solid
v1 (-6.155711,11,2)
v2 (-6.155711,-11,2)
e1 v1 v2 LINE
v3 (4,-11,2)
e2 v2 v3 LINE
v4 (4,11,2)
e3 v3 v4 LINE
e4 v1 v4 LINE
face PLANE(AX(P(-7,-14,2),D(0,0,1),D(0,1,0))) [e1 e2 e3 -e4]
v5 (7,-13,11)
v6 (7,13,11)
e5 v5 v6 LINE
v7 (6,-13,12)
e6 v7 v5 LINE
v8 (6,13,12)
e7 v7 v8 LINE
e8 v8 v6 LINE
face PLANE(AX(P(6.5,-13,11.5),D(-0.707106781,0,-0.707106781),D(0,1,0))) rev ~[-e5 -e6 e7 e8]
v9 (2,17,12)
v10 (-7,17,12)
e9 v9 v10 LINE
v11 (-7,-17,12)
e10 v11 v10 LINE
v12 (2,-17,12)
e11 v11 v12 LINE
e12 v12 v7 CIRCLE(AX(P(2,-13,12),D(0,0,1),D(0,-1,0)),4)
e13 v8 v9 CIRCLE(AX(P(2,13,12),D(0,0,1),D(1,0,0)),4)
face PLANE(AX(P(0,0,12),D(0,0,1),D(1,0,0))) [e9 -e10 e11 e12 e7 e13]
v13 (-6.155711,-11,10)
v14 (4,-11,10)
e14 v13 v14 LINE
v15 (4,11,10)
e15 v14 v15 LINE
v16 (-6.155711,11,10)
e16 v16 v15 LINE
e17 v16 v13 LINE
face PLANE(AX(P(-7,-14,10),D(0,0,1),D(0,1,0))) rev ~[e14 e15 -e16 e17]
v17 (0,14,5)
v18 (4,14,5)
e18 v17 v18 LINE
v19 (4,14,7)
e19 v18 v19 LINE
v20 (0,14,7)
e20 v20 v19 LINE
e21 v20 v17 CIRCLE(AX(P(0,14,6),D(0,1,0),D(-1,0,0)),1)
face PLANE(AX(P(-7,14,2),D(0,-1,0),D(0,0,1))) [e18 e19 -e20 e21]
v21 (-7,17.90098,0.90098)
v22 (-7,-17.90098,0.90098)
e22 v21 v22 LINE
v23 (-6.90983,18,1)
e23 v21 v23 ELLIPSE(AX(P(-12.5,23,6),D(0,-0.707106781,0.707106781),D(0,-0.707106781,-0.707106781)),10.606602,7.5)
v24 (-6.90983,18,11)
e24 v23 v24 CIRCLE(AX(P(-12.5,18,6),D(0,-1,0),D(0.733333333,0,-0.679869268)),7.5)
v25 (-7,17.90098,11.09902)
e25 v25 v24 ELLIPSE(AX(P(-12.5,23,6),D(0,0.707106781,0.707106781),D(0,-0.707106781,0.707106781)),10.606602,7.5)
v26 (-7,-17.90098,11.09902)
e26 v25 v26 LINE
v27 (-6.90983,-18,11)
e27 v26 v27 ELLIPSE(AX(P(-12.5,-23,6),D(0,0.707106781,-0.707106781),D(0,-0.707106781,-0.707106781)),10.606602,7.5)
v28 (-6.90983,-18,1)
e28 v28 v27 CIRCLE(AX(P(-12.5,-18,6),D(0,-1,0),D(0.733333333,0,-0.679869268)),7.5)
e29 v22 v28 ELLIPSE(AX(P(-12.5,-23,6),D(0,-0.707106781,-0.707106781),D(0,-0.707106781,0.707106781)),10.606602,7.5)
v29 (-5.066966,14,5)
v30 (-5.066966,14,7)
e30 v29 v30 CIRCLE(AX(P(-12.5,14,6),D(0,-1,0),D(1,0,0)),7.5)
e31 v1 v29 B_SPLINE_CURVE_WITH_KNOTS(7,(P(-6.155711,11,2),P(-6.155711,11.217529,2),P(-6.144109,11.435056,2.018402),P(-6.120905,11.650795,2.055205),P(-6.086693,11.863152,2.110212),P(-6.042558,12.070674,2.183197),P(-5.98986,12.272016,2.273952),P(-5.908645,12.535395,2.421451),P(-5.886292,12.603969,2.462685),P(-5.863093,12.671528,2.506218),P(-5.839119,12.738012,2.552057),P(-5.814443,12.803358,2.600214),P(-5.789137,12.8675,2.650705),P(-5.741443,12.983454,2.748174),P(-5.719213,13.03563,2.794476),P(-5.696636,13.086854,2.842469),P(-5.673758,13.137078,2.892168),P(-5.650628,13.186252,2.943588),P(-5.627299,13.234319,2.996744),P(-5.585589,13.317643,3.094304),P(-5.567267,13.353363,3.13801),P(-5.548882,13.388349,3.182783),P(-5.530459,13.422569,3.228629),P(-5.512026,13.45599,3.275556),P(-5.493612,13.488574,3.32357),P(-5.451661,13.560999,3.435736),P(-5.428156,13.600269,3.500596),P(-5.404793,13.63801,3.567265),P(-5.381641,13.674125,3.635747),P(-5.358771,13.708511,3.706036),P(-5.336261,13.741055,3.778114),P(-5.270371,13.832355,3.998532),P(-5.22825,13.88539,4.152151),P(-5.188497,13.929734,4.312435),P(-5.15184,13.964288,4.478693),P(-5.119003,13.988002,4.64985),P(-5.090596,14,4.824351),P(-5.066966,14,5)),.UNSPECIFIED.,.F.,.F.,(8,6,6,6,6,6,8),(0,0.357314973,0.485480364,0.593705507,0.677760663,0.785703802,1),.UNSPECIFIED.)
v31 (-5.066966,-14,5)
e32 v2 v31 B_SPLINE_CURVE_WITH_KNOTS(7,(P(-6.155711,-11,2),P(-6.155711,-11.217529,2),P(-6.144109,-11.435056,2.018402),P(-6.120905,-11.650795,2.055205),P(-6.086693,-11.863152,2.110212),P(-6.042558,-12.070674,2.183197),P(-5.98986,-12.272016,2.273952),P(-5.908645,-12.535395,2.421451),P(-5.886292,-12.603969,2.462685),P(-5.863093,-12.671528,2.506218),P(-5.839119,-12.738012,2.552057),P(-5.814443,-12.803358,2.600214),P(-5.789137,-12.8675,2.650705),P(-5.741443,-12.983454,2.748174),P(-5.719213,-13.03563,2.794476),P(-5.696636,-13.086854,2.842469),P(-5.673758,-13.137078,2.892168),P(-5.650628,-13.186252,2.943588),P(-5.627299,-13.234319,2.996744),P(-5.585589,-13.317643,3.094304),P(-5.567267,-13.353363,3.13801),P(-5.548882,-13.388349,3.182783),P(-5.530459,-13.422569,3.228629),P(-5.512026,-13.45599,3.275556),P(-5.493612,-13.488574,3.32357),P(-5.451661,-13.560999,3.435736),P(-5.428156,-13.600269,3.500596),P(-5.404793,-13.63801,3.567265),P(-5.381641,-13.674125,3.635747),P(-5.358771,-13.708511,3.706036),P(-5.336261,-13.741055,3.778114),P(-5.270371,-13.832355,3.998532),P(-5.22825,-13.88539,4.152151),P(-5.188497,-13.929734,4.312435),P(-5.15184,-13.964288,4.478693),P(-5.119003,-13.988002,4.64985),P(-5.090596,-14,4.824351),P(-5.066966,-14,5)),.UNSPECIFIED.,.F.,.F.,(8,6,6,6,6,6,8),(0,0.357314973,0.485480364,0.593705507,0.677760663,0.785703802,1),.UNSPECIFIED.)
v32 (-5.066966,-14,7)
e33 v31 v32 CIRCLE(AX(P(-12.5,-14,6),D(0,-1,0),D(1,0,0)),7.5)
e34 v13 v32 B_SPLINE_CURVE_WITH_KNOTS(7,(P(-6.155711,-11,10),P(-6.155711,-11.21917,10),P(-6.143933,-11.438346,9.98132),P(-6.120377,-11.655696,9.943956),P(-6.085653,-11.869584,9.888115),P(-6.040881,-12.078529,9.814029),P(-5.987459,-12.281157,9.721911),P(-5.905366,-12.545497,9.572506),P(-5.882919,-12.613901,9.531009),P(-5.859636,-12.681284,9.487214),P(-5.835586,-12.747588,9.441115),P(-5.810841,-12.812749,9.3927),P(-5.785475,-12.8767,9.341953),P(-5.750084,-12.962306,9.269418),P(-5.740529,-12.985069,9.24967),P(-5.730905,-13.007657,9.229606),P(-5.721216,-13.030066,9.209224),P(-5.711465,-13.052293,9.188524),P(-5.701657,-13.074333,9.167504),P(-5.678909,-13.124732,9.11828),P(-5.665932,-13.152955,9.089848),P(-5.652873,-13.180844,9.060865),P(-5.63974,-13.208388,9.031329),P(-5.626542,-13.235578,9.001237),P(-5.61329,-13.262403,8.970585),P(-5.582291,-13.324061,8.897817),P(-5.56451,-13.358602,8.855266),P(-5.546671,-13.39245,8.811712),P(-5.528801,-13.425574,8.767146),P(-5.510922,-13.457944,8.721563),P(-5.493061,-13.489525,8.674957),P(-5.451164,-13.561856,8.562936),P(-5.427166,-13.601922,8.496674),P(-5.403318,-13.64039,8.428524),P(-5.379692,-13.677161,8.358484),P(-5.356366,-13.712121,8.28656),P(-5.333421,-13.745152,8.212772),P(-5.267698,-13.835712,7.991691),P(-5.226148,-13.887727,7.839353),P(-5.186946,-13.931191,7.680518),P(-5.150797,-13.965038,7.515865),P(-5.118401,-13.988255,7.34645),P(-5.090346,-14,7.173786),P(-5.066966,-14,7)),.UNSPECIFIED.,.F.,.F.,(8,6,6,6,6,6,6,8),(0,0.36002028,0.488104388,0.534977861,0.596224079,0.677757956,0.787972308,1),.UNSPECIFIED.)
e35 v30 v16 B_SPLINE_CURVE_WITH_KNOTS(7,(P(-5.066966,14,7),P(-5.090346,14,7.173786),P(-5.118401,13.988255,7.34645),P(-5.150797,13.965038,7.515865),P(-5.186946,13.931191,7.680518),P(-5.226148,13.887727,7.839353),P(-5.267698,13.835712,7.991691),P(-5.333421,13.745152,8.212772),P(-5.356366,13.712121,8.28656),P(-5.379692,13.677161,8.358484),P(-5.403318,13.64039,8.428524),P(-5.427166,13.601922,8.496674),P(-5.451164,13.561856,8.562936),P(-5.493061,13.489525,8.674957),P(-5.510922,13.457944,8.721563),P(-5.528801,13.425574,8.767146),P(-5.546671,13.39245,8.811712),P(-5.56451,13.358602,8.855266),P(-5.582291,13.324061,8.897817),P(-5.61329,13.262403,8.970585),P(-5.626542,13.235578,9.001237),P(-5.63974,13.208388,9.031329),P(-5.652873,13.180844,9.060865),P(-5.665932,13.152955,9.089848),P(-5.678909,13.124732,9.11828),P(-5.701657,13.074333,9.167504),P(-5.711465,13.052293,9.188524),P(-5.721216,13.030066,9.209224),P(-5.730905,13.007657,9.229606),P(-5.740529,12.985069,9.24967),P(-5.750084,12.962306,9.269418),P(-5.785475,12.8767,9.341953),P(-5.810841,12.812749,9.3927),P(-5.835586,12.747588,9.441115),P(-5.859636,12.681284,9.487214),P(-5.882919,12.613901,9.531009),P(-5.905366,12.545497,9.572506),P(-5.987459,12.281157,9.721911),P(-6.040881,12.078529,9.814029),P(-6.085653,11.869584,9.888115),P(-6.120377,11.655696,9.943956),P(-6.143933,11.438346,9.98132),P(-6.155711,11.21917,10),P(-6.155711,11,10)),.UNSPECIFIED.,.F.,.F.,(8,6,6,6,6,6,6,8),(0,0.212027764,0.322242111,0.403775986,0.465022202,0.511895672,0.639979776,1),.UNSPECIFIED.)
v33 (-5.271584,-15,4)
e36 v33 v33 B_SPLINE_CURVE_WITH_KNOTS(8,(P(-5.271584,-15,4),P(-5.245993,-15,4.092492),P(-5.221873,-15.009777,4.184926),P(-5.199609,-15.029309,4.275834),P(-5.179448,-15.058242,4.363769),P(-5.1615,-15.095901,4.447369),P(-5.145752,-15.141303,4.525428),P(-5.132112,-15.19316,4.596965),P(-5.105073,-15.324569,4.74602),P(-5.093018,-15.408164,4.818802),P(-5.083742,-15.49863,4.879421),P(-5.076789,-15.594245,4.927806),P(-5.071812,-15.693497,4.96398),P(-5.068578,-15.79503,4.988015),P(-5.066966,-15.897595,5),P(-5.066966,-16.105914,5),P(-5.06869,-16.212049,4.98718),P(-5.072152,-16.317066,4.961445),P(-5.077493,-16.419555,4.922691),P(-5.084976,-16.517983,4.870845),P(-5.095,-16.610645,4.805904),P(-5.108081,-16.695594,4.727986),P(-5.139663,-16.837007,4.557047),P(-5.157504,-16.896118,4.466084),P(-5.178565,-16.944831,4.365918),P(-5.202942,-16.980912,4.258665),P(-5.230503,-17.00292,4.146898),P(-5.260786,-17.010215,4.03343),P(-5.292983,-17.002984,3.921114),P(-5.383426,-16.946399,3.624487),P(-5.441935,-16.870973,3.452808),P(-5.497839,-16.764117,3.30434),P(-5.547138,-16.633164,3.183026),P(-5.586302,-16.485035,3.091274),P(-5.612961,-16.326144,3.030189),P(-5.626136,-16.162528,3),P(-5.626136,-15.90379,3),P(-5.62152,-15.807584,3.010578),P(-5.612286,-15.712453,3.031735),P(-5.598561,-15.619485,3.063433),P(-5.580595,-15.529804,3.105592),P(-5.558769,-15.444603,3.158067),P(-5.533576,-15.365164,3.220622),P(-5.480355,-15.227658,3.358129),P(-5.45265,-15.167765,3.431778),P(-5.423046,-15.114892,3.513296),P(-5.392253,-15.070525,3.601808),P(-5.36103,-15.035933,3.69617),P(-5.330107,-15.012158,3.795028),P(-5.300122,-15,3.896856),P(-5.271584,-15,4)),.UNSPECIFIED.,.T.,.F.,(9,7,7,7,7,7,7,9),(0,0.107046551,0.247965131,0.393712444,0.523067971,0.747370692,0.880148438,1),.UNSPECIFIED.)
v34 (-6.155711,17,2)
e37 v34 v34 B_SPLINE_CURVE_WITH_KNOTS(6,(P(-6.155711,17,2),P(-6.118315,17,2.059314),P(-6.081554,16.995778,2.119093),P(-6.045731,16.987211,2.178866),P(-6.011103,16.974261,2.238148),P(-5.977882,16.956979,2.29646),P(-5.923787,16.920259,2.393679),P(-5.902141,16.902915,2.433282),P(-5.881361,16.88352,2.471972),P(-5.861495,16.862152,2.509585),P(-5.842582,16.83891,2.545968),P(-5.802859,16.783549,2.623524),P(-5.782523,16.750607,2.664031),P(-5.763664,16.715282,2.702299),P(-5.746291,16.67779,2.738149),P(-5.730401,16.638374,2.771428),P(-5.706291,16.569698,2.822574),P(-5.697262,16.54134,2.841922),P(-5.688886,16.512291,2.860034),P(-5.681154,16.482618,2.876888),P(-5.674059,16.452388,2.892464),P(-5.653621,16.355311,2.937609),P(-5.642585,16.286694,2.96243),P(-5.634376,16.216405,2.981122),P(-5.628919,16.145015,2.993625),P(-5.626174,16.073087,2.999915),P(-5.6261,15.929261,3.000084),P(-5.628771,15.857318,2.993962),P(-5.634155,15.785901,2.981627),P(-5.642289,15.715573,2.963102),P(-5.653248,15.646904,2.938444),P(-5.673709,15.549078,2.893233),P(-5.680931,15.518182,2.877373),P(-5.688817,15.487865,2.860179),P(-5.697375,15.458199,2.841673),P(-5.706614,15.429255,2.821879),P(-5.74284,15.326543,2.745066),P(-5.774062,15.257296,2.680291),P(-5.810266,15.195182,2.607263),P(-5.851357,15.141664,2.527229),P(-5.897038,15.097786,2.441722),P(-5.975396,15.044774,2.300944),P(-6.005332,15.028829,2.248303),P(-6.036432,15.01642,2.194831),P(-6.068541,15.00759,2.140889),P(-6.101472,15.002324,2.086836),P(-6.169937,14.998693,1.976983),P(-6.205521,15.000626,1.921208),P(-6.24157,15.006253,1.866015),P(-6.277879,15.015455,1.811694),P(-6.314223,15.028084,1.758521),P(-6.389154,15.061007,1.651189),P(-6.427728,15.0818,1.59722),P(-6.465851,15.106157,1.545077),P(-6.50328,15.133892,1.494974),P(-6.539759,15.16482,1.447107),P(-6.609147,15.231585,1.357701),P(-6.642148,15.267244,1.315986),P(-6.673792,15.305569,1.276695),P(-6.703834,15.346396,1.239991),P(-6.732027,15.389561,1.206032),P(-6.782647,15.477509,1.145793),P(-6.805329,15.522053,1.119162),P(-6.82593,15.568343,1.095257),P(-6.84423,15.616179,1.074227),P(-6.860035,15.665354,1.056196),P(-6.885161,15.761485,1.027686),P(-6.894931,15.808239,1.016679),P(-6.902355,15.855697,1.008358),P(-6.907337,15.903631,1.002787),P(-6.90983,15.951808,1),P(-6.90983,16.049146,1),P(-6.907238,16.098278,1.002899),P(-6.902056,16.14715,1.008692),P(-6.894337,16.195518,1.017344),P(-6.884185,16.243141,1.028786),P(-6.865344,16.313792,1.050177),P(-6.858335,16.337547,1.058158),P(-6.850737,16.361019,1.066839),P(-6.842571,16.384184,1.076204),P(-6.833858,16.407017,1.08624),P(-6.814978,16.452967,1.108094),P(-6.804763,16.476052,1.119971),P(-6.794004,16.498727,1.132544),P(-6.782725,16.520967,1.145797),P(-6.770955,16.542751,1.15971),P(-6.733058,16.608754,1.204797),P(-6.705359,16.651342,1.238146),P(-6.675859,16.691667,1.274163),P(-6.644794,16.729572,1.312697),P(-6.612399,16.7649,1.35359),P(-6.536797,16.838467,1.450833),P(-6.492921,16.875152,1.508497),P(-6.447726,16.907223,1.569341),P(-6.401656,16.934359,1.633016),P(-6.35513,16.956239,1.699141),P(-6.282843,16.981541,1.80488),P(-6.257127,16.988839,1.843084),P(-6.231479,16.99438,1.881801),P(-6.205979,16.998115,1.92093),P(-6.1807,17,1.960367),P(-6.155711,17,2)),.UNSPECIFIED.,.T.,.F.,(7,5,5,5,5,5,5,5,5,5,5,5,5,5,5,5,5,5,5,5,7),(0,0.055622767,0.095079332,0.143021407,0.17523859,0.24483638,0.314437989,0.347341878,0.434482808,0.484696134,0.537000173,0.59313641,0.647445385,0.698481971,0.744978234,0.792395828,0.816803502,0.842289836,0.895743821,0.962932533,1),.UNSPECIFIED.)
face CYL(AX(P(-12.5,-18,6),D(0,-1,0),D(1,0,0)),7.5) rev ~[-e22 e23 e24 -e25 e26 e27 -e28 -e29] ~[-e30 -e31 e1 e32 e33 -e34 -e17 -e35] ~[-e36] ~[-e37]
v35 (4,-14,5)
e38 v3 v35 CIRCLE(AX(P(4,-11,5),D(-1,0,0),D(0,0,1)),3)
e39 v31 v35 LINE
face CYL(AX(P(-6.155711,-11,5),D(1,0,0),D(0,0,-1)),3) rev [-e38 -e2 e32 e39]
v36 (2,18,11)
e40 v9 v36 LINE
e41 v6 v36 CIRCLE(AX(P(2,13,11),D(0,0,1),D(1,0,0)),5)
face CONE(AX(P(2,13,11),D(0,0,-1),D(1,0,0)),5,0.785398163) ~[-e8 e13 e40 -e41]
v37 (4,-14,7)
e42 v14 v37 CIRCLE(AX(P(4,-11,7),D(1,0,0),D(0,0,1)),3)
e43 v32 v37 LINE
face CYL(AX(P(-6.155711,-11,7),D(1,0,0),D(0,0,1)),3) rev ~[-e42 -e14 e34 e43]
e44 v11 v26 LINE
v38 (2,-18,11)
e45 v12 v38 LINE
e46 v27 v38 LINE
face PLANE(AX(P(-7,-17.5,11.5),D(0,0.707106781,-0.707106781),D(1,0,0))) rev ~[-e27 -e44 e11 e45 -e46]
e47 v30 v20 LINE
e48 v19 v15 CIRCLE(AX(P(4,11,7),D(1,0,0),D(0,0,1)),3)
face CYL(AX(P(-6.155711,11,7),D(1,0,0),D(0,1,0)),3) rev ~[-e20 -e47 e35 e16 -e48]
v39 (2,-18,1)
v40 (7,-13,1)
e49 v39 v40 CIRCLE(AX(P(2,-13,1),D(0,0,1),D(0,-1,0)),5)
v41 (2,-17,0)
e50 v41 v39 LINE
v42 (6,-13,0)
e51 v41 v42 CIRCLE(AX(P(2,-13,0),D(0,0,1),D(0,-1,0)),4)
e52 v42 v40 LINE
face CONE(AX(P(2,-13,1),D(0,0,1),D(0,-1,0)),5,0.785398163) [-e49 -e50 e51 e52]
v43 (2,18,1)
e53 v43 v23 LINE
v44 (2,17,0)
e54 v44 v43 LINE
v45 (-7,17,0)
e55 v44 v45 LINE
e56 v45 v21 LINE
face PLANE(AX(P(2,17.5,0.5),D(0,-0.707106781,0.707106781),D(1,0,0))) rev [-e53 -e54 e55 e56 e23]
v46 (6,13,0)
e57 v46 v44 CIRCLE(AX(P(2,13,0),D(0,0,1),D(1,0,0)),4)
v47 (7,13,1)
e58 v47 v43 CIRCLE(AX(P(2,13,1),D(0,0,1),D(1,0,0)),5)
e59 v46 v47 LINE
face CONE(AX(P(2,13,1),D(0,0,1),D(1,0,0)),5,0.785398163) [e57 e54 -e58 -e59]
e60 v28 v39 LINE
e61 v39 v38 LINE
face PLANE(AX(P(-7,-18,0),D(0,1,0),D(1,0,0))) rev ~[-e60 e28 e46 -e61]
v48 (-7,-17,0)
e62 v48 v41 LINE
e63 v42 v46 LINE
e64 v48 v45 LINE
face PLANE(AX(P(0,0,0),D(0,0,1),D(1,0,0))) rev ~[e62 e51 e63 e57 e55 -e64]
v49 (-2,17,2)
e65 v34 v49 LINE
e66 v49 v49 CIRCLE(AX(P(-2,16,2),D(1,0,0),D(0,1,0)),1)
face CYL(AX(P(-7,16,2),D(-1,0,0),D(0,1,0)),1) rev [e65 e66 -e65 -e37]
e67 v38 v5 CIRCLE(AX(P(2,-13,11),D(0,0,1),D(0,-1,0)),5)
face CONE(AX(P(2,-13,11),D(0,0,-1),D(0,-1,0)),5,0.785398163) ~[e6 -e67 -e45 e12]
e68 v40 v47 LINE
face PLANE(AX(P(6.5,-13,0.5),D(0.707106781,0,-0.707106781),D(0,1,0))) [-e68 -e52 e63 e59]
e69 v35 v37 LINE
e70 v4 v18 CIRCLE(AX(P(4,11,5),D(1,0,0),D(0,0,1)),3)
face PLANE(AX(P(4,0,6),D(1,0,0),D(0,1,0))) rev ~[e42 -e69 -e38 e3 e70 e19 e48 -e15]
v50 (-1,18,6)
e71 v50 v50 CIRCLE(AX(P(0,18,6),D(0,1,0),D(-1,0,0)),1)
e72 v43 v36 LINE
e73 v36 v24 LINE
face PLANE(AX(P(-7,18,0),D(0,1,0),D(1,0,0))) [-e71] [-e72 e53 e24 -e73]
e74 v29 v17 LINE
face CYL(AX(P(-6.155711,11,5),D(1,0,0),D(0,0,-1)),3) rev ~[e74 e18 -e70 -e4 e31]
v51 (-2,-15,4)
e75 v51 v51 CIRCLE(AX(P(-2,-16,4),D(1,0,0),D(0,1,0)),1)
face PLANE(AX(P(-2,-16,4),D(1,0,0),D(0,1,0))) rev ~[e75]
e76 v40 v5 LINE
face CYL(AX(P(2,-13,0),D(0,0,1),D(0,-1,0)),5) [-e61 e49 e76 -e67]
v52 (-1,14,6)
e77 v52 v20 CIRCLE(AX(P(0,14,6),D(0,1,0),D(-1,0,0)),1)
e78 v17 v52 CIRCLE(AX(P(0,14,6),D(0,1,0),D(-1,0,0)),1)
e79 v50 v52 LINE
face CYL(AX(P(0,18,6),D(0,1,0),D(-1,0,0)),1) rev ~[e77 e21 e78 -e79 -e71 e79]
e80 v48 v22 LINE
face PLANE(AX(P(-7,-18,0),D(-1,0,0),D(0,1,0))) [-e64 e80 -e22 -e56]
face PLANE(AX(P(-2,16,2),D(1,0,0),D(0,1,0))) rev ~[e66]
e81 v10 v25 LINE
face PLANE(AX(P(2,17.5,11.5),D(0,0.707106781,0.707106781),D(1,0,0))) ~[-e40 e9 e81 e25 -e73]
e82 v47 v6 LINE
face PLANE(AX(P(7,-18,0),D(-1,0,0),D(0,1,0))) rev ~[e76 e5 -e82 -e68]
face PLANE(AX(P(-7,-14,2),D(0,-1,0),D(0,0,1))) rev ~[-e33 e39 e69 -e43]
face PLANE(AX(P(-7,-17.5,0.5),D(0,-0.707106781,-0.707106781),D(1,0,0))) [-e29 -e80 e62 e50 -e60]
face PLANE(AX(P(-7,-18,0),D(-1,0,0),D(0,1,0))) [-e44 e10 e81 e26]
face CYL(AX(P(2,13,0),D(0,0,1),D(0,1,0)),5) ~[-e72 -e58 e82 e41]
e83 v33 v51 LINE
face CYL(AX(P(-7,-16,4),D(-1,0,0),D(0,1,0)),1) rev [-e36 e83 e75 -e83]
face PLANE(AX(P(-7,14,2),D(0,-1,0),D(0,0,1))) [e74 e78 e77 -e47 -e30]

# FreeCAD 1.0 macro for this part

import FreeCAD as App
import Part
import Sketcher


def edges_at(feature, points):
    """Names of the edges that pass closest to the given points."""
    edges = feature.Shape.Edges
    near = lambda p: min(range(len(edges)), key=lambda i: edges[i].distToShape(Part.Vertex(*p))[0])
    return sorted({f"Edge{near(p) + 1}" for p in points})

doc = App.newDocument("Part")
body = doc.addObject("PartDesign::Body", "Body")

sketch1 = body.newObject("Sketcher::SketchObject", "Sketch")
sketch1.AttachmentSupport = (doc.getObject("XY_Plane"), [""])
sketch1.MapMode = "FlatFace"
sketch1.addGeometry([
    Part.LineSegment(App.Vector(-7, 18, 0), App.Vector(-7, -18, 0)),
    Part.LineSegment(App.Vector(-7, -18, 0), App.Vector(7, -18, 0)),
    Part.LineSegment(App.Vector(7, -18, 0), App.Vector(7, 18, 0)),
    Part.LineSegment(App.Vector(7, 18, 0), App.Vector(-7, 18, 0)),
], False)
sketch1.addConstraint([
    Sketcher.Constraint("Coincident", 0, 2, 1, 1),
    Sketcher.Constraint("Coincident", 1, 2, 2, 1),
    Sketcher.Constraint("Coincident", 2, 2, 3, 1),
    Sketcher.Constraint("Coincident", 3, 2, 0, 1),
    Sketcher.Constraint("Vertical", 0),
    Sketcher.Constraint("Horizontal", 1),
    Sketcher.Constraint("Vertical", 2),
    Sketcher.Constraint("Horizontal", 3),
    Sketcher.Constraint("Symmetric", 0, 2, 2, 2, -1, 1),
    Sketcher.Constraint("DistanceX", 1, 1, 1, 2, 14.0),
    Sketcher.Constraint("DistanceY", 0, 2, 0, 1, 36.0),
])
pad1 = body.newObject("PartDesign::Pad", "Pad")
pad1.Profile = sketch1
pad1.Length = 12

sketch2 = body.newObject("Sketcher::SketchObject", "Sketch001")
sketch2.AttachmentSupport = (doc.getObject("XZ_Plane"), [""])
sketch2.MapMode = "FlatFace"
sketch2.AttachmentOffset = App.Placement(App.Vector(0, 0, 18), App.Rotation())
sketch2.addGeometry(Part.Circle(App.Vector(-12, 6, 0), App.Vector(0, 0, 1), 8), False)
sketch2.addConstraint([
    Sketcher.Constraint("Diameter", 0, 15.0),
    Sketcher.Constraint("DistanceY", -1, 1, 0, 3, 6.0),
    Sketcher.Constraint("DistanceX", 0, 3, -1, 1, 12.5),
])
pocket1 = body.newObject("PartDesign::Pocket", "Pocket")
pocket1.Profile = sketch2
pocket1.Type = "ThroughAll"

sketch3 = body.newObject("Sketcher::SketchObject", "Sketch002")
sketch3.AttachmentSupport = (doc.getObject("YZ_Plane"), [""])
sketch3.MapMode = "FlatFace"
sketch3.AttachmentOffset = App.Placement(App.Vector(0, 0, -7), App.Rotation())
sketch3.addGeometry([
    Part.LineSegment(App.Vector(-14, 10, 0), App.Vector(-14, 2, 0)),
    Part.LineSegment(App.Vector(-14, 2, 0), App.Vector(14, 2, 0)),
    Part.LineSegment(App.Vector(14, 2, 0), App.Vector(14, 10, 0)),
    Part.LineSegment(App.Vector(14, 10, 0), App.Vector(-14, 10, 0)),
], False)
sketch3.addConstraint([
    Sketcher.Constraint("Coincident", 0, 2, 1, 1),
    Sketcher.Constraint("Coincident", 1, 2, 2, 1),
    Sketcher.Constraint("Coincident", 2, 2, 3, 1),
    Sketcher.Constraint("Coincident", 3, 2, 0, 1),
    Sketcher.Constraint("Vertical", 0),
    Sketcher.Constraint("Horizontal", 1),
    Sketcher.Constraint("Vertical", 2),
    Sketcher.Constraint("Horizontal", 3),
    Sketcher.Constraint("DistanceX", 1, 1, 1, 2, 28.0),
    Sketcher.Constraint("DistanceY", 0, 2, 0, 1, 8.0),
    Sketcher.Constraint("DistanceX", 0, 2, -1, 1, 14.0),
    Sketcher.Constraint("DistanceY", -1, 1, 0, 2, 2.0),
])
pocket2 = body.newObject("PartDesign::Pocket", "Pocket001")
pocket2.Profile = sketch3
pocket2.Length = 11
pocket2.Reversed = True
doc.recompute()

fillet = body.newObject("PartDesign::Fillet", "Fillet")
fillet.Base = (pocket2, edges_at(pocket2, [
    (-1.078, 14, 2),
    (-1.078, -14, 10),
    (-1.078, -14, 2),
    (-1.078, 14, 10),
]))
fillet.Radius = 3
doc.recompute()

fillet2 = body.newObject("PartDesign::Fillet", "Fillet001")
fillet2.Base = (fillet, edges_at(fillet, [(7, -18, 6), (7, 18, 6)]))
fillet2.Radius = 5
doc.recompute()

chamfer = body.newObject("PartDesign::Chamfer", "Chamfer")
chamfer.Base = (fillet2, edges_at(fillet2, [(-2.5, -18, 0), (-2.5, -18, 12)]))
chamfer.Size = 1

sketch4 = body.newObject("Sketcher::SketchObject", "Sketch003")
sketch4.AttachmentSupport = (doc.getObject("XZ_Plane"), [""])
sketch4.MapMode = "FlatFace"
sketch4.AttachmentOffset = App.Placement(App.Vector(0, 0, -18), App.Rotation())
sketch4.addGeometry(Part.Circle(App.Vector(0, 6, 0), App.Vector(0, 0, 1), 1), False)
sketch4.addConstraint([
    Sketcher.Constraint("PointOnObject", 0, 3, -2),
    Sketcher.Constraint("Diameter", 0, 2.0),
    Sketcher.Constraint("DistanceY", -1, 1, 0, 3, 6.0),
])
pocket3 = body.newObject("PartDesign::Pocket", "Pocket002")
pocket3.Profile = sketch4
pocket3.Length = 4
pocket3.Reversed = True

sketch5 = body.newObject("Sketcher::SketchObject", "Sketch004")
sketch5.AttachmentSupport = (doc.getObject("YZ_Plane"), [""])
sketch5.MapMode = "FlatFace"
sketch5.AttachmentOffset = App.Placement(App.Vector(0, 0, -7), App.Rotation())
sketch5.addGeometry([
    Part.Circle(App.Vector(-16, 4, 0), App.Vector(0, 0, 1), 1),
    Part.Circle(App.Vector(16, 2, 0), App.Vector(0, 0, 1), 1),
], False)
sketch5.addConstraint([
    Sketcher.Constraint("Equal", 0, 1),
    Sketcher.Constraint("Diameter", 0, 2.0),
    Sketcher.Constraint("DistanceX", 0, 3, -1, 1, 16.0),
    Sketcher.Constraint("DistanceY", -1, 1, 0, 3, 4.0),
    Sketcher.Constraint("DistanceX", -1, 1, 1, 3, 16.0),
    Sketcher.Constraint("DistanceY", -1, 1, 1, 3, 2.0),
])
pocket4 = body.newObject("PartDesign::Pocket", "Pocket003")
pocket4.Profile = sketch5
pocket4.Length = 5
pocket4.Reversed = True

doc.recompute()
